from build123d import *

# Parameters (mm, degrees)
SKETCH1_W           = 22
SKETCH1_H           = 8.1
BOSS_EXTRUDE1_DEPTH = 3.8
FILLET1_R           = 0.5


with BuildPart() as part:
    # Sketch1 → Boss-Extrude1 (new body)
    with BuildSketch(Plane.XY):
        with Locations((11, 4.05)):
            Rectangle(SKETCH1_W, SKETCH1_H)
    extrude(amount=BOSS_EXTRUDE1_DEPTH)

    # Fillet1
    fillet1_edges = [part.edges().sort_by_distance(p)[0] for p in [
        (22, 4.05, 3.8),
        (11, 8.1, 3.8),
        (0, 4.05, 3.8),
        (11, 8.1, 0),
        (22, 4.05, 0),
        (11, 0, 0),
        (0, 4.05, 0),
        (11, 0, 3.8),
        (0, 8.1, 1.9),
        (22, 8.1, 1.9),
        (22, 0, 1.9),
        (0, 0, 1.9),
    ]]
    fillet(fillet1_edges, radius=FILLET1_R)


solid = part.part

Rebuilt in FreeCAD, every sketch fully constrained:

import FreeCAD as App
import Part
import Sketcher
Q = App.Units.Quantity

doc = App.newDocument("Part")
body = doc.addObject("PartDesign::Body", "Body")

sketch1 = doc.addObject("Sketcher::SketchObject", "Sketch")
body.addObject(sketch1)
sketch1.AttachmentSupport = (doc.XY_Plane, [""])
sketch1.MapMode = "FlatFace"
sketch1.addGeometry(Part.LineSegment(App.Vector(0, 8.1, 0), App.Vector(0, 0, 0)), False)
sketch1.addGeometry(Part.LineSegment(App.Vector(0, 0, 0), App.Vector(22, 0, 0)), False)
sketch1.addGeometry(Part.LineSegment(App.Vector(22, 0, 0), App.Vector(22, 8.1, 0)), False)
sketch1.addGeometry(Part.LineSegment(App.Vector(22, 8.1, 0), App.Vector(0, 8.1, 0)), False)
sketch1.addConstraint(Sketcher.Constraint("Coincident", 0, 2, 1, 1))
sketch1.addConstraint(Sketcher.Constraint("Coincident", 1, 2, 2, 1))
sketch1.addConstraint(Sketcher.Constraint("Coincident", 2, 2, 3, 1))
sketch1.addConstraint(Sketcher.Constraint("Coincident", 3, 2, 0, 1))
sketch1.addConstraint(Sketcher.Constraint("Vertical", 0))
sketch1.addConstraint(Sketcher.Constraint("Horizontal", 1))
sketch1.addConstraint(Sketcher.Constraint("Vertical", 2))
sketch1.addConstraint(Sketcher.Constraint("Horizontal", 3))
sketch1.addConstraint(Sketcher.Constraint("Coincident", 0, 2, -1, 1))
sketch1.addConstraint(Sketcher.Constraint("DistanceX", 1, 1, 1, 2, Q("22 mm")))
sketch1.addConstraint(Sketcher.Constraint("DistanceY", 0, 2, 0, 1, Q("8.1 mm")))
pad1 = doc.addObject("PartDesign::Pad", "Pad")
body.addObject(pad1)
pad1.Profile = sketch1
pad1.Length = 3.8
doc.recompute()

fillet = doc.addObject("PartDesign::Fillet", "Fillet")
body.addObject(fillet)
fillet.Base = (pad1, ["Edge1"])
fillet.UseAllEdges = True
fillet.Radius = 0.5

doc.recompute()
